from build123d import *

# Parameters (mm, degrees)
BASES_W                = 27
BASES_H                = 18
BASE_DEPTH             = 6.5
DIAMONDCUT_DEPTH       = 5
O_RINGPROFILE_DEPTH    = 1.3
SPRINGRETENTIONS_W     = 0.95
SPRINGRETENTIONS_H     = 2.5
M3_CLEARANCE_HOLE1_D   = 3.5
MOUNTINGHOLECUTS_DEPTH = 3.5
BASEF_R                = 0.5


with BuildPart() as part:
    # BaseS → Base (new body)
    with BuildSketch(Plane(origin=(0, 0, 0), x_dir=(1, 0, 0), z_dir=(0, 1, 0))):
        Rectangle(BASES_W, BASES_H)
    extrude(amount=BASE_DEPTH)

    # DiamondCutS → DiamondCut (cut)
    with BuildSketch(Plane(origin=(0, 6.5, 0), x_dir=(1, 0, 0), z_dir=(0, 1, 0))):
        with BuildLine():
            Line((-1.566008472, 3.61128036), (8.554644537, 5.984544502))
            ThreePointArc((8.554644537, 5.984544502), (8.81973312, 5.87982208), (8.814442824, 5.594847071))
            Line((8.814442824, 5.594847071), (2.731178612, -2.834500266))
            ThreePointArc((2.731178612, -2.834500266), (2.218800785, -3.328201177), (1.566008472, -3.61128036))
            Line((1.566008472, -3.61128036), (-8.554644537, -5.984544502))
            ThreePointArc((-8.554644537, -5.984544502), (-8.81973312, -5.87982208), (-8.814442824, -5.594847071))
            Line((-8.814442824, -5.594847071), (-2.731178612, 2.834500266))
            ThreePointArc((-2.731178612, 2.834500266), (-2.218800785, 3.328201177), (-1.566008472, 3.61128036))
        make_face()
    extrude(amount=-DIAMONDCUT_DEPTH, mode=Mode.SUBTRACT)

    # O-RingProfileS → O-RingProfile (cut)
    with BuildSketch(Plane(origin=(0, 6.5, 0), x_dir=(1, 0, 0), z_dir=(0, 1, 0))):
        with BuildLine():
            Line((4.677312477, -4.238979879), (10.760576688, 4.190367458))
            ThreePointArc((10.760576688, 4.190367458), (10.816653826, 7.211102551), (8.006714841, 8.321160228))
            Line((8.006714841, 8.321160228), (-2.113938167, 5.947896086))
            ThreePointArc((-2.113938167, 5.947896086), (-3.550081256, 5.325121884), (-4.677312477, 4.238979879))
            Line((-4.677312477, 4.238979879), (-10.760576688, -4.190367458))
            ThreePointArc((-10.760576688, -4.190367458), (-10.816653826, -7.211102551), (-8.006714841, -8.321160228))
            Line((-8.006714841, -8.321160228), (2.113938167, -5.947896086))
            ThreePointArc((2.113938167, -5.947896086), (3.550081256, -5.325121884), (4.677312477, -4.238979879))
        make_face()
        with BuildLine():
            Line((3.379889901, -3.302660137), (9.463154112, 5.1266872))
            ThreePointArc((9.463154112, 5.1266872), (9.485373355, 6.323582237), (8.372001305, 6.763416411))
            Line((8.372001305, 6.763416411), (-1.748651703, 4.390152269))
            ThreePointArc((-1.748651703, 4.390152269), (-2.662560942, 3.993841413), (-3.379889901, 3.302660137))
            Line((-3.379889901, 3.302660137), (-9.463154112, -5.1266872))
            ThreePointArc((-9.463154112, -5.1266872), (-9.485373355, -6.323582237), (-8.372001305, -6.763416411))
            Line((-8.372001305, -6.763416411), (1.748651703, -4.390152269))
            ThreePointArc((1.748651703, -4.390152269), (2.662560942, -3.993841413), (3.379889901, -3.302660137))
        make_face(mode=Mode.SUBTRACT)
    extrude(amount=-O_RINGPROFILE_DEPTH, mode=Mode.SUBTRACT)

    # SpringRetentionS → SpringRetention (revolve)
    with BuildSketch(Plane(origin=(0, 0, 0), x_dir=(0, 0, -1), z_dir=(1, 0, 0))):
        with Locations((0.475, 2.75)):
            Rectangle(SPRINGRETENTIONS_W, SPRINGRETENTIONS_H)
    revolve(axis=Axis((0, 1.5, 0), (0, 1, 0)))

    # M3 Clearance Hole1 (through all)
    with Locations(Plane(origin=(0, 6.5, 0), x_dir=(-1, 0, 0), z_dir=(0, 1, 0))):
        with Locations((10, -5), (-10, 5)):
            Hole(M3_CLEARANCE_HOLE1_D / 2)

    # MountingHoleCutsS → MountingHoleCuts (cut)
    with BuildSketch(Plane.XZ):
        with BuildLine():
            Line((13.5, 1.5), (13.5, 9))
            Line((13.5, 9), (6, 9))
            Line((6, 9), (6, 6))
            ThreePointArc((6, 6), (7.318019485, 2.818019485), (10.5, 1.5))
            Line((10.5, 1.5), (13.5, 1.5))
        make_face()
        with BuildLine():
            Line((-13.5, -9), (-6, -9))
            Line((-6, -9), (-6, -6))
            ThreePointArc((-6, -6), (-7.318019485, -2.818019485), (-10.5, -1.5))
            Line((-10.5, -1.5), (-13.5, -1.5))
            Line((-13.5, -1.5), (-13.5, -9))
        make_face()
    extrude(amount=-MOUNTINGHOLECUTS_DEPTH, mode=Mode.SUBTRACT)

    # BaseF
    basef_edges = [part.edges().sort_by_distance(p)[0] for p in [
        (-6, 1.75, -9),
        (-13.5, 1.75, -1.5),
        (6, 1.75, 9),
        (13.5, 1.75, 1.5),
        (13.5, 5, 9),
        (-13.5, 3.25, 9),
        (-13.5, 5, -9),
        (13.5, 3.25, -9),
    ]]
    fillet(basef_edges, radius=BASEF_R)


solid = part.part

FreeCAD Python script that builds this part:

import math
import FreeCAD as App
import Part
import Sketcher


def edges_at(feature, points):
    """Names of the edges that pass closest to the given points."""
    edges = feature.Shape.Edges
    near = lambda p: min(range(len(edges)), key=lambda i: edges[i].distToShape(Part.Vertex(*p))[0])
    return sorted({f"Edge{near(p) + 1}" for p in points})


def add_polygon(sketch, points):
    """Adds a closed chain of lines whose ends are joined by coincident constraints."""
    first, n = sketch.GeometryCount, len(points)
    for a, b in zip(points, points[1:] + points[:1]):
        sketch.addGeometry(Part.LineSegment(App.Vector(*a, 0), App.Vector(*b, 0)), False)
    for i in range(n):
        sketch.addConstraint(Sketcher.Constraint("Coincident", first + i, 2, first + (i + 1) % n, 1))

doc = App.newDocument("Part")
body = doc.addObject("PartDesign::Body", "Body")

sketch1 = body.newObject("Sketcher::SketchObject", "Sketch")
sketch1.AttachmentSupport = (doc.getObject("XZ_Plane"), [""])
sketch1.MapMode = "FlatFace"
add_polygon(sketch1, [(-14, -9), (-14, 9), (14, 9), (14, -9)])
sketch1.addConstraint([
    Sketcher.Constraint("Vertical", 0),
    Sketcher.Constraint("Horizontal", 1),
    Sketcher.Constraint("Vertical", 2),
    Sketcher.Constraint("Horizontal", 3),
    Sketcher.Constraint("Symmetric", 0, 2, 2, 2, -1, 1),
    Sketcher.Constraint("DistanceX", 1, 1, 1, 2, 27.0),
    Sketcher.Constraint("DistanceY", 0, 1, 0, 2, 18.0),
])
pad1 = body.newObject("PartDesign::Pad", "Pad")
pad1.Profile = sketch1
pad1.Length = 6.5
pad1.Reversed = True

sketch2 = body.newObject("Sketcher::SketchObject", "Sketch001")
sketch2.AttachmentSupport = (doc.getObject("XZ_Plane"), [""])
sketch2.MapMode = "FlatFace"
sketch2.AttachmentOffset = App.Placement(App.Vector(0, 0, -6.5), App.Rotation())
sketch2.addGeometry([
    Part.LineSegment(App.Vector(8.55, -5.98, 0), App.Vector(-1.57, -3.61, 0)),
    Part.ArcOfCircle(Part.Circle(App.Vector(-1.11, -1.66, 0), App.Vector(0, 0, 1), 2), math.radians(-144), math.radians(-103)),
    Part.LineSegment(App.Vector(-2.73, -2.83, 0), App.Vector(-8.81, 5.59, 0)),
    Part.ArcOfCircle(Part.Circle(App.Vector(-8.61, 5.74, 0), App.Vector(0, 0, 1), 0.25), math.radians(77), math.radians(216)),
    Part.LineSegment(App.Vector(-8.55, 5.98, 0), App.Vector(1.57, 3.61, 0)),
    Part.ArcOfCircle(Part.Circle(App.Vector(1.11, 1.66, 0), App.Vector(0, 0, 1), 2), math.radians(36), math.radians(77)),
    Part.LineSegment(App.Vector(2.73, 2.83, 0), App.Vector(8.81, -5.59, 0)),
    Part.ArcOfCircle(Part.Circle(App.Vector(8.61, -5.74, 0), App.Vector(0, 0, 1), 0.25), math.radians(-103), math.radians(36)),
], False)
sketch2.addConstraint([
    Sketcher.Constraint("Tangent", 0, 2, 1, 2),
    Sketcher.Constraint("Tangent", 1, 1, 2, 1),
    Sketcher.Constraint("Tangent", 2, 2, 3, 2),
    Sketcher.Constraint("Tangent", 3, 1, 4, 1),
    Sketcher.Constraint("Tangent", 4, 2, 5, 2),
    Sketcher.Constraint("Tangent", 5, 1, 6, 1),
    Sketcher.Constraint("Tangent", 6, 2, 7, 2),
    Sketcher.Constraint("Tangent", 7, 1, 0, 1),
    Sketcher.Constraint("Equal", 1, 5),
    Sketcher.Constraint("Equal", 3, 7),
    Sketcher.Constraint("Symmetric", 1, 3, 5, 3, -1, 1),
    Sketcher.Constraint("Symmetric", 3, 3, 7, 3, -1, 1),
    Sketcher.Constraint("Equal", 0, 2),
    Sketcher.Constraint("Radius", 1, 2.0),
    Sketcher.Constraint("Radius", 3, 0.25),
    Sketcher.Constraint("DistanceY", 1, 1, 5, 1, 5.669001),
    Sketcher.Constraint("DistanceX", 1, 3, -1, 1, 1.1094),
    Sketcher.Constraint("DistanceY", 1, 3, -1, 1, 1.664101),
])
pocket1 = body.newObject("PartDesign::Pocket", "Pocket")
pocket1.Profile = sketch2
pocket1.Length = 5
pocket1.Reversed = True

sketch3 = body.newObject("Sketcher::SketchObject", "Sketch002")
sketch3.AttachmentSupport = (doc.getObject("XZ_Plane"), [""])
sketch3.MapMode = "FlatFace"
sketch3.AttachmentOffset = App.Placement(App.Vector(0, 0, -6.5), App.Rotation())
sketch3.addGeometry([
    Part.LineSegment(App.Vector(4.7, 4.2, 0), App.Vector(10.8, -4.2, 0)),
    Part.ArcOfCircle(Part.Circle(App.Vector(8.6, -5.7, 0), App.Vector(0, 0, 1), 2.6), math.radians(-103), math.radians(36)),
    Part.LineSegment(App.Vector(8, -8.3, 0), App.Vector(-2.1, -5.9, 0)),
    Part.ArcOfCircle(Part.Circle(App.Vector(-1.1, -1.7, 0), App.Vector(0, 0, 1), 4.4), math.radians(-144), math.radians(-103)),
    Part.LineSegment(App.Vector(-4.7, -4.2, 0), App.Vector(-10.8, 4.2, 0)),
    Part.ArcOfCircle(Part.Circle(App.Vector(-8.6, 5.7, 0), App.Vector(0, 0, 1), 2.6), math.radians(77), math.radians(216)),
    Part.LineSegment(App.Vector(-8, 8.3, 0), App.Vector(2.1, 5.9, 0)),
    Part.ArcOfCircle(Part.Circle(App.Vector(1.1, 1.7, 0), App.Vector(0, 0, 1), 4.4), math.radians(36), math.radians(77)),
    Part.LineSegment(App.Vector(9.5, -5.1, 0), App.Vector(3.4, 3.3, 0)),
    Part.ArcOfCircle(Part.Circle(App.Vector(1.1, 1.7, 0), App.Vector(0, 0, 1), 2.8), math.radians(36), math.radians(77)),
    Part.LineSegment(App.Vector(1.7, 4.4, 0), App.Vector(-8.4, 6.8, 0)),
    Part.ArcOfCircle(Part.Circle(App.Vector(-8.6, 5.7, 0), App.Vector(0, 0, 1), 1.1), math.radians(77), math.radians(216)),
    Part.LineSegment(App.Vector(-9.5, 5.1, 0), App.Vector(-3.4, -3.3, 0)),
    Part.ArcOfCircle(Part.Circle(App.Vector(-1.1, -1.7, 0), App.Vector(0, 0, 1), 2.8), math.radians(-144), math.radians(-103)),
    Part.LineSegment(App.Vector(-1.7, -4.4, 0), App.Vector(8.4, -6.8, 0)),
    Part.ArcOfCircle(Part.Circle(App.Vector(8.6, -5.7, 0), App.Vector(0, 0, 1), 1.1), math.radians(-103), math.radians(36)),
], False)
sketch3.addConstraint([
    Sketcher.Constraint("Tangent", 0, 2, 1, 2),
    Sketcher.Constraint("Tangent", 1, 1, 2, 1),
    Sketcher.Constraint("Tangent", 2, 2, 3, 2),
    Sketcher.Constraint("Tangent", 3, 1, 4, 1),
    Sketcher.Constraint("Tangent", 4, 2, 5, 2),
    Sketcher.Constraint("Tangent", 5, 1, 6, 1),
    Sketcher.Constraint("Tangent", 6, 2, 7, 2),
    Sketcher.Constraint("Tangent", 7, 1, 0, 1),
    Sketcher.Constraint("Tangent", 8, 2, 9, 1),
    Sketcher.Constraint("Tangent", 9, 2, 10, 1),
    Sketcher.Constraint("Tangent", 10, 2, 11, 1),
    Sketcher.Constraint("Tangent", 11, 2, 12, 1),
    Sketcher.Constraint("Tangent", 12, 2, 13, 1),
    Sketcher.Constraint("Tangent", 13, 2, 14, 1),
    Sketcher.Constraint("Tangent", 14, 2, 15, 1),
    Sketcher.Constraint("Tangent", 15, 2, 8, 1),
    Sketcher.Constraint("Coincident", 9, 3, 7, 3),
    Sketcher.Constraint("Coincident", 11, 3, 5, 3),
    Sketcher.Constraint("Coincident", 13, 3, 3, 3),
    Sketcher.Constraint("Coincident", 15, 3, 1, 3),
    Sketcher.Constraint("Equal", 1, 5),
    Sketcher.Constraint("Equal", 3, 7),
    Sketcher.Constraint("Equal", 9, 13),
    Sketcher.Constraint("Equal", 11, 15),
    Sketcher.Constraint("Symmetric", 1, 3, 5, 3, -1, 1),
    Sketcher.Constraint("Symmetric", 3, 3, 7, 3, -1, 1),
    Sketcher.Constraint("Parallel", 4, 8),
    Sketcher.Constraint("Equal", 0, 2),
    Sketcher.Constraint("Radius", 3, 4.4),
    Sketcher.Constraint("Radius", 9, 2.8),
    Sketcher.Constraint("Radius", 1, 2.65),
    Sketcher.Constraint("DistanceX", 10, 2, -1, 1, 8.372001),
    Sketcher.Constraint("DistanceX", 3, 3, -1, 1, 1.1094),
    Sketcher.Constraint("DistanceY", 3, 3, -1, 1, 1.664101),
])
pocket2 = body.newObject("PartDesign::Pocket", "Pocket001")
pocket2.Profile = sketch3
pocket2.Length = 1.3
pocket2.Reversed = True

sketch4 = body.newObject("Sketcher::SketchObject", "Sketch003")
sketch4.AttachmentSupport = (doc.getObject("YZ_Plane"), [""])
sketch4.MapMode = "FlatFace"
add_polygon(sketch4, [(4, 0), (1.5, 0), (1.5, -0.9), (4, -0.9)])
sketch4.addConstraint([
    Sketcher.Constraint("Horizontal", 0),
    Sketcher.Constraint("Vertical", 1),
    Sketcher.Constraint("Horizontal", 2),
    Sketcher.Constraint("Vertical", 3),
    Sketcher.Constraint("PointOnObject", 0, 2, -1),
    Sketcher.Constraint("DistanceX", 0, 2, 0, 1, 2.5),
    Sketcher.Constraint("DistanceX", -1, 1, 2, 2, 4.0),
    Sketcher.Constraint("DistanceY", 1, 2, 1, 1, 0.95),
])
revolution = body.newObject("PartDesign::Revolution", "Revolution")
revolution.Profile = sketch4
revolution.ReferenceAxis = (sketch4, ["H_Axis"])
revolution.Angle = 360

sketch5 = body.newObject("Sketcher::SketchObject", "Sketch004")
sketch5.AttachmentSupport = (doc.getObject("XZ_Plane"), [""])
sketch5.MapMode = "FlatFace"
sketch5.AttachmentOffset = App.Placement(App.Vector(0, 0, -6.5), App.Rotation())
sketch5.addGeometry([
    Part.Circle(App.Vector(-10, -5, 0), App.Vector(0, 0, 1), 1.8),
    Part.Circle(App.Vector(10, 5, 0), App.Vector(0, 0, 1), 1.8),
], False)
sketch5.addConstraint([
    Sketcher.Constraint("Equal", 0, 1),
    Sketcher.Constraint("Symmetric", 0, 3, 1, 3, -1, 1),
    Sketcher.Constraint("Diameter", 0, 3.5),
    Sketcher.Constraint("DistanceX", 0, 3, -1, 1, 10.0),
    Sketcher.Constraint("DistanceY", 0, 3, -1, 1, 5.0),
])
doc.recompute()
hole = body.newObject("PartDesign::Hole", "Hole")
hole.Profile = sketch5
hole.ThreadType = "None"
hole.Diameter = 3.5
hole.DepthType = "ThroughAll"
hole.Reversed = True

sketch6 = body.newObject("Sketcher::SketchObject", "Sketch005")
sketch6.AttachmentSupport = (doc.getObject("XZ_Plane"), [""])
sketch6.MapMode = "FlatFace"
sketch6.addGeometry([
    Part.LineSegment(App.Vector(13.5, 1.5, 0), App.Vector(13.5, 9, 0)),
    Part.LineSegment(App.Vector(13.5, 9, 0), App.Vector(6, 9, 0)),
    Part.LineSegment(App.Vector(6, 9, 0), App.Vector(6, 6, 0)),
    Part.ArcOfCircle(Part.Circle(App.Vector(10.5, 6, 0), App.Vector(0, 0, 1), 4.5), math.radians(-180), math.radians(-90)),
    Part.LineSegment(App.Vector(10.5, 1.5, 0), App.Vector(13.5, 1.5, 0)),
    Part.LineSegment(App.Vector(-13.5, -9, 0), App.Vector(-6, -9, 0)),
    Part.LineSegment(App.Vector(-6, -9, 0), App.Vector(-6, -6, 0)),
    Part.ArcOfCircle(Part.Circle(App.Vector(-10.5, -6, 0), App.Vector(0, 0, 1), 4.5), math.radians(0), math.radians(90)),
    Part.LineSegment(App.Vector(-10.5, -1.5, 0), App.Vector(-13.5, -1.5, 0)),
    Part.LineSegment(App.Vector(-13.5, -1.5, 0), App.Vector(-13.5, -9, 0)),
], False)
sketch6.addConstraint([
    Sketcher.Constraint("Coincident", 0, 2, 1, 1),
    Sketcher.Constraint("Coincident", 1, 2, 2, 1),
    Sketcher.Constraint("Tangent", 2, 2, 3, 1),
    Sketcher.Constraint("Tangent", 3, 2, 4, 1),
    Sketcher.Constraint("Coincident", 4, 2, 0, 1),
    Sketcher.Constraint("Coincident", 5, 2, 6, 1),
    Sketcher.Constraint("Tangent", 6, 2, 7, 1),
    Sketcher.Constraint("Tangent", 7, 2, 8, 1),
    Sketcher.Constraint("Coincident", 8, 2, 9, 1),
    Sketcher.Constraint("Coincident", 9, 2, 5, 1),
    Sketcher.Constraint("Vertical", 0),
    Sketcher.Constraint("Horizontal", 1),
    Sketcher.Constraint("Vertical", 2),
    Sketcher.Constraint("Horizontal", 4),
    Sketcher.Constraint("Horizontal", 5),
    Sketcher.Constraint("Vertical", 6),
    Sketcher.Constraint("Horizontal", 8),
    Sketcher.Constraint("Vertical", 9),
    Sketcher.Constraint("Equal", 3, 7),
    Sketcher.Constraint("Symmetric", 3, 3, 7, 3, -1, 1),
    Sketcher.Constraint("Symmetric", 0, 2, 9, 2, -1, 1),
    Sketcher.Constraint("Equal", 5, 0),
    Sketcher.Constraint("Radius", 3, 4.5),
    Sketcher.Constraint("DistanceX", 4, 1, 4, 2, 3.0),
    Sketcher.Constraint("DistanceY", -1, 1, 3, 3, 6.0),
    Sketcher.Constraint("DistanceX", -1, 1, 1, 2, 6.0),
])
pocket3 = body.newObject("PartDesign::Pocket", "Pocket002")
pocket3.Profile = sketch6
pocket3.Length = 3.5
doc.recompute()

fillet = body.newObject("PartDesign::Fillet", "Fillet")
fillet.Base = (pocket3, edges_at(pocket3, [
    (-6, 1.75, -9),
    (-13.5, 1.75, -1.5),
    (6, 1.75, 9),
    (13.5, 1.75, 1.5),
    (13.5, 5, 9),
    (-13.5, 3.25, 9),
    (-13.5, 5, -9),
    (13.5, 3.25, -9),
]))
fillet.Radius = 0.5

doc.recompute()
